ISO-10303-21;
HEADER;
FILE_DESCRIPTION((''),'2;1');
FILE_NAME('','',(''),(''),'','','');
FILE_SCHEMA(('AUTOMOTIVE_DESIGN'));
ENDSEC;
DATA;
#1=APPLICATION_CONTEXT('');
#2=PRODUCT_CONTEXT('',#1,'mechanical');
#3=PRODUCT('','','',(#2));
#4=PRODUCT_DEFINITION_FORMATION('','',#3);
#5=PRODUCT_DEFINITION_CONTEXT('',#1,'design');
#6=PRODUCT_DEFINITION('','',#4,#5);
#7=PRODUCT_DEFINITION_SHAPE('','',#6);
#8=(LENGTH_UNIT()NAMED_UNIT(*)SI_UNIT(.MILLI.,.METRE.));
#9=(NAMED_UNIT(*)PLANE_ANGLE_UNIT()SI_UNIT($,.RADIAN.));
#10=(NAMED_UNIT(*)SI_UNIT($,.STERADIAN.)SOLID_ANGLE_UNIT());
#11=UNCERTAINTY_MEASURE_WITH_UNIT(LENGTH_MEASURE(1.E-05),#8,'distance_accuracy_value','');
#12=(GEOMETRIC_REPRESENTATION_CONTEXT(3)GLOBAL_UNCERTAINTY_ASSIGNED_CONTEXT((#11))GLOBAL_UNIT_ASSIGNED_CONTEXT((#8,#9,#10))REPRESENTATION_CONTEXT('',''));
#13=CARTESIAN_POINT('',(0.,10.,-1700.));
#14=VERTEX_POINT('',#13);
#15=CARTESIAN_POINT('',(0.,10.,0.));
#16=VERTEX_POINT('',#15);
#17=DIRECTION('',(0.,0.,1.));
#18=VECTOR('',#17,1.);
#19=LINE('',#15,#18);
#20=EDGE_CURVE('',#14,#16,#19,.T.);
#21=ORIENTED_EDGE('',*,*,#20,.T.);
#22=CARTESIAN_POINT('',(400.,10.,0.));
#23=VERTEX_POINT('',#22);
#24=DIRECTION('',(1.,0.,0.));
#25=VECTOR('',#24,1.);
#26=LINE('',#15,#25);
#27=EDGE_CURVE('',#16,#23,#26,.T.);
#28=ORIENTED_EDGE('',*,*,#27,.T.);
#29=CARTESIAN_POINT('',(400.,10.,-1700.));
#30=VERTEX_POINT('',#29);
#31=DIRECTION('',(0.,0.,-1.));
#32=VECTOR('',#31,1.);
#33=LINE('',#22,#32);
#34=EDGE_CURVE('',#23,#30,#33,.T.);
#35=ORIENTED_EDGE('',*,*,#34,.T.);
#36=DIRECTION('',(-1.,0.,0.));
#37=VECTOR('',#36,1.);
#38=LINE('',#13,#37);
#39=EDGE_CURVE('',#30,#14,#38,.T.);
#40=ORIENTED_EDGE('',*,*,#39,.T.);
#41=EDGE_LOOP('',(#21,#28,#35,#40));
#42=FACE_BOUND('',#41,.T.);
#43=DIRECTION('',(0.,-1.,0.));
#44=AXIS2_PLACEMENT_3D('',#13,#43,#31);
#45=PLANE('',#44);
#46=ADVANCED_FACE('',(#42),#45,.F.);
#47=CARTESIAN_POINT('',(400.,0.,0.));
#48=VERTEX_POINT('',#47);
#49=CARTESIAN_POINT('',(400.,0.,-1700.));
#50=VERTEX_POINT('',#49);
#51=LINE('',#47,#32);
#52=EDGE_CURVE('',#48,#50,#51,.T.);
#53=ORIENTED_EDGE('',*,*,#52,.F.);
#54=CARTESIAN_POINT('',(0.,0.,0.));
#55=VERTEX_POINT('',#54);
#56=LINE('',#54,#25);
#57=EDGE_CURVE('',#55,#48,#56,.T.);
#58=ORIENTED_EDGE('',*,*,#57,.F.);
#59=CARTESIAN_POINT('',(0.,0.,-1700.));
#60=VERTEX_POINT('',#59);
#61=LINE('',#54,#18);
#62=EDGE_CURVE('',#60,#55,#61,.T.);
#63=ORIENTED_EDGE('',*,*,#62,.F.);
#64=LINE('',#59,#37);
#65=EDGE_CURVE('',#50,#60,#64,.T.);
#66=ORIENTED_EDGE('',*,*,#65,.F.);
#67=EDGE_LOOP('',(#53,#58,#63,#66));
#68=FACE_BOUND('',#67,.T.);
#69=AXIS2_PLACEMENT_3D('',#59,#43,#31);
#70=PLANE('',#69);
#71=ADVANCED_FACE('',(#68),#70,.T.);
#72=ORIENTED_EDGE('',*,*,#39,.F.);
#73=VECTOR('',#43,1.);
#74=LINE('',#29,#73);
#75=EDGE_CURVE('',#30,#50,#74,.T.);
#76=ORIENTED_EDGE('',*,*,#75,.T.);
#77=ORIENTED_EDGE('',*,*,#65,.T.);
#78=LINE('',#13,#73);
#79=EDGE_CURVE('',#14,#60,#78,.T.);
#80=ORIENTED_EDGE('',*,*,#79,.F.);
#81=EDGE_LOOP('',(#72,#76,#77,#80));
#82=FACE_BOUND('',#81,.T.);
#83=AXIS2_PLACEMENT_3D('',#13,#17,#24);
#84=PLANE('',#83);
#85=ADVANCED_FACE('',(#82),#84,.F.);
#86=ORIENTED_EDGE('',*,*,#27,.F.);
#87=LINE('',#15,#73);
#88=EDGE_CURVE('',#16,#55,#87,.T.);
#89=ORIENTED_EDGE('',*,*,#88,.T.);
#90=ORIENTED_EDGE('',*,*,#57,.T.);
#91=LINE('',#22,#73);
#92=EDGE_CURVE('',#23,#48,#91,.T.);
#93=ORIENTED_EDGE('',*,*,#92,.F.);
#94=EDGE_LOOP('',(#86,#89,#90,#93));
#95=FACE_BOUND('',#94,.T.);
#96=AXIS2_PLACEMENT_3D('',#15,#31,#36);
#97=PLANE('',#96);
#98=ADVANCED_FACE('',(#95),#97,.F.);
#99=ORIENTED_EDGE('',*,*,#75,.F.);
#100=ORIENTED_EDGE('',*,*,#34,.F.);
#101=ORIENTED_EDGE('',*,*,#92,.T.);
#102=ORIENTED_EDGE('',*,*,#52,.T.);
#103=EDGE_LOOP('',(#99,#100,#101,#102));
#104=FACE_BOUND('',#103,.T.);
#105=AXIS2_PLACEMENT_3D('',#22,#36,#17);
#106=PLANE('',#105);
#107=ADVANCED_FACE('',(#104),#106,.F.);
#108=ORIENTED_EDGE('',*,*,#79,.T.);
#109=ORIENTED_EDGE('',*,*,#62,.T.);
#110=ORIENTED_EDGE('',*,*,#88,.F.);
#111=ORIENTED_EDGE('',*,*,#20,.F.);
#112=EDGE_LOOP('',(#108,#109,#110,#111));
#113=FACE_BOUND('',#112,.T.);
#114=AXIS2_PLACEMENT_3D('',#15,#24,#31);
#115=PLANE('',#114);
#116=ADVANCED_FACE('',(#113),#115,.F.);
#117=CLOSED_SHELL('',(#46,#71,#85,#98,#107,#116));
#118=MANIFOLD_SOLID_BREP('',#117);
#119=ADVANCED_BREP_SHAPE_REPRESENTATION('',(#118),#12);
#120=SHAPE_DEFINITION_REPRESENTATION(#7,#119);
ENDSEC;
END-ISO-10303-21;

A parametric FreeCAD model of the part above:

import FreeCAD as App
import Part
import Sketcher
from FreeCAD import Vector
Q = App.Units.Quantity


def add_polygon(sketch, points):
    """Adds a closed chain of lines whose ends are joined by coincident constraints."""
    first, n = sketch.GeometryCount, len(points)
    for a, b in zip(points, points[1:] + points[:1]):
        sketch.addGeometry(Part.LineSegment(App.Vector(*a, 0), App.Vector(*b, 0)), False)
    for i in range(n):
        sketch.addConstraint(Sketcher.Constraint("Coincident", first + i, 2, first + (i + 1) % n, 1))

doc = App.newDocument("Part")
body = doc.addObject("PartDesign::Body", "Body")

sketch1 = doc.addObject("Sketcher::SketchObject", "Sketch")
body.addObject(sketch1)
sketch1.AttachmentSupport = (doc.XZ_Plane, [""])
sketch1.MapMode = "FlatFace"
add_polygon(sketch1, [(0, -1700), (0, 0), (400, 0), (400, -1700)])
sketch1.addConstraint([
    Sketcher.Constraint("Vertical", 0),
    Sketcher.Constraint("Horizontal", 1),
    Sketcher.Constraint("Vertical", 2),
    Sketcher.Constraint("Horizontal", 3),
    Sketcher.Constraint("Coincident", 0, 2, -1, 1),
    Sketcher.Constraint("DistanceX", 1, 1, 1, 2, Q("400 mm")),
    Sketcher.Constraint("DistanceY", 0, 1, 0, 2, Q("1700 mm")),
])
pad1 = doc.addObject("PartDesign::Pad", "Pad")
body.addObject(pad1)
pad1.Profile = sketch1
pad1.Length = 10
pad1.Reversed = True

doc.recompute()
